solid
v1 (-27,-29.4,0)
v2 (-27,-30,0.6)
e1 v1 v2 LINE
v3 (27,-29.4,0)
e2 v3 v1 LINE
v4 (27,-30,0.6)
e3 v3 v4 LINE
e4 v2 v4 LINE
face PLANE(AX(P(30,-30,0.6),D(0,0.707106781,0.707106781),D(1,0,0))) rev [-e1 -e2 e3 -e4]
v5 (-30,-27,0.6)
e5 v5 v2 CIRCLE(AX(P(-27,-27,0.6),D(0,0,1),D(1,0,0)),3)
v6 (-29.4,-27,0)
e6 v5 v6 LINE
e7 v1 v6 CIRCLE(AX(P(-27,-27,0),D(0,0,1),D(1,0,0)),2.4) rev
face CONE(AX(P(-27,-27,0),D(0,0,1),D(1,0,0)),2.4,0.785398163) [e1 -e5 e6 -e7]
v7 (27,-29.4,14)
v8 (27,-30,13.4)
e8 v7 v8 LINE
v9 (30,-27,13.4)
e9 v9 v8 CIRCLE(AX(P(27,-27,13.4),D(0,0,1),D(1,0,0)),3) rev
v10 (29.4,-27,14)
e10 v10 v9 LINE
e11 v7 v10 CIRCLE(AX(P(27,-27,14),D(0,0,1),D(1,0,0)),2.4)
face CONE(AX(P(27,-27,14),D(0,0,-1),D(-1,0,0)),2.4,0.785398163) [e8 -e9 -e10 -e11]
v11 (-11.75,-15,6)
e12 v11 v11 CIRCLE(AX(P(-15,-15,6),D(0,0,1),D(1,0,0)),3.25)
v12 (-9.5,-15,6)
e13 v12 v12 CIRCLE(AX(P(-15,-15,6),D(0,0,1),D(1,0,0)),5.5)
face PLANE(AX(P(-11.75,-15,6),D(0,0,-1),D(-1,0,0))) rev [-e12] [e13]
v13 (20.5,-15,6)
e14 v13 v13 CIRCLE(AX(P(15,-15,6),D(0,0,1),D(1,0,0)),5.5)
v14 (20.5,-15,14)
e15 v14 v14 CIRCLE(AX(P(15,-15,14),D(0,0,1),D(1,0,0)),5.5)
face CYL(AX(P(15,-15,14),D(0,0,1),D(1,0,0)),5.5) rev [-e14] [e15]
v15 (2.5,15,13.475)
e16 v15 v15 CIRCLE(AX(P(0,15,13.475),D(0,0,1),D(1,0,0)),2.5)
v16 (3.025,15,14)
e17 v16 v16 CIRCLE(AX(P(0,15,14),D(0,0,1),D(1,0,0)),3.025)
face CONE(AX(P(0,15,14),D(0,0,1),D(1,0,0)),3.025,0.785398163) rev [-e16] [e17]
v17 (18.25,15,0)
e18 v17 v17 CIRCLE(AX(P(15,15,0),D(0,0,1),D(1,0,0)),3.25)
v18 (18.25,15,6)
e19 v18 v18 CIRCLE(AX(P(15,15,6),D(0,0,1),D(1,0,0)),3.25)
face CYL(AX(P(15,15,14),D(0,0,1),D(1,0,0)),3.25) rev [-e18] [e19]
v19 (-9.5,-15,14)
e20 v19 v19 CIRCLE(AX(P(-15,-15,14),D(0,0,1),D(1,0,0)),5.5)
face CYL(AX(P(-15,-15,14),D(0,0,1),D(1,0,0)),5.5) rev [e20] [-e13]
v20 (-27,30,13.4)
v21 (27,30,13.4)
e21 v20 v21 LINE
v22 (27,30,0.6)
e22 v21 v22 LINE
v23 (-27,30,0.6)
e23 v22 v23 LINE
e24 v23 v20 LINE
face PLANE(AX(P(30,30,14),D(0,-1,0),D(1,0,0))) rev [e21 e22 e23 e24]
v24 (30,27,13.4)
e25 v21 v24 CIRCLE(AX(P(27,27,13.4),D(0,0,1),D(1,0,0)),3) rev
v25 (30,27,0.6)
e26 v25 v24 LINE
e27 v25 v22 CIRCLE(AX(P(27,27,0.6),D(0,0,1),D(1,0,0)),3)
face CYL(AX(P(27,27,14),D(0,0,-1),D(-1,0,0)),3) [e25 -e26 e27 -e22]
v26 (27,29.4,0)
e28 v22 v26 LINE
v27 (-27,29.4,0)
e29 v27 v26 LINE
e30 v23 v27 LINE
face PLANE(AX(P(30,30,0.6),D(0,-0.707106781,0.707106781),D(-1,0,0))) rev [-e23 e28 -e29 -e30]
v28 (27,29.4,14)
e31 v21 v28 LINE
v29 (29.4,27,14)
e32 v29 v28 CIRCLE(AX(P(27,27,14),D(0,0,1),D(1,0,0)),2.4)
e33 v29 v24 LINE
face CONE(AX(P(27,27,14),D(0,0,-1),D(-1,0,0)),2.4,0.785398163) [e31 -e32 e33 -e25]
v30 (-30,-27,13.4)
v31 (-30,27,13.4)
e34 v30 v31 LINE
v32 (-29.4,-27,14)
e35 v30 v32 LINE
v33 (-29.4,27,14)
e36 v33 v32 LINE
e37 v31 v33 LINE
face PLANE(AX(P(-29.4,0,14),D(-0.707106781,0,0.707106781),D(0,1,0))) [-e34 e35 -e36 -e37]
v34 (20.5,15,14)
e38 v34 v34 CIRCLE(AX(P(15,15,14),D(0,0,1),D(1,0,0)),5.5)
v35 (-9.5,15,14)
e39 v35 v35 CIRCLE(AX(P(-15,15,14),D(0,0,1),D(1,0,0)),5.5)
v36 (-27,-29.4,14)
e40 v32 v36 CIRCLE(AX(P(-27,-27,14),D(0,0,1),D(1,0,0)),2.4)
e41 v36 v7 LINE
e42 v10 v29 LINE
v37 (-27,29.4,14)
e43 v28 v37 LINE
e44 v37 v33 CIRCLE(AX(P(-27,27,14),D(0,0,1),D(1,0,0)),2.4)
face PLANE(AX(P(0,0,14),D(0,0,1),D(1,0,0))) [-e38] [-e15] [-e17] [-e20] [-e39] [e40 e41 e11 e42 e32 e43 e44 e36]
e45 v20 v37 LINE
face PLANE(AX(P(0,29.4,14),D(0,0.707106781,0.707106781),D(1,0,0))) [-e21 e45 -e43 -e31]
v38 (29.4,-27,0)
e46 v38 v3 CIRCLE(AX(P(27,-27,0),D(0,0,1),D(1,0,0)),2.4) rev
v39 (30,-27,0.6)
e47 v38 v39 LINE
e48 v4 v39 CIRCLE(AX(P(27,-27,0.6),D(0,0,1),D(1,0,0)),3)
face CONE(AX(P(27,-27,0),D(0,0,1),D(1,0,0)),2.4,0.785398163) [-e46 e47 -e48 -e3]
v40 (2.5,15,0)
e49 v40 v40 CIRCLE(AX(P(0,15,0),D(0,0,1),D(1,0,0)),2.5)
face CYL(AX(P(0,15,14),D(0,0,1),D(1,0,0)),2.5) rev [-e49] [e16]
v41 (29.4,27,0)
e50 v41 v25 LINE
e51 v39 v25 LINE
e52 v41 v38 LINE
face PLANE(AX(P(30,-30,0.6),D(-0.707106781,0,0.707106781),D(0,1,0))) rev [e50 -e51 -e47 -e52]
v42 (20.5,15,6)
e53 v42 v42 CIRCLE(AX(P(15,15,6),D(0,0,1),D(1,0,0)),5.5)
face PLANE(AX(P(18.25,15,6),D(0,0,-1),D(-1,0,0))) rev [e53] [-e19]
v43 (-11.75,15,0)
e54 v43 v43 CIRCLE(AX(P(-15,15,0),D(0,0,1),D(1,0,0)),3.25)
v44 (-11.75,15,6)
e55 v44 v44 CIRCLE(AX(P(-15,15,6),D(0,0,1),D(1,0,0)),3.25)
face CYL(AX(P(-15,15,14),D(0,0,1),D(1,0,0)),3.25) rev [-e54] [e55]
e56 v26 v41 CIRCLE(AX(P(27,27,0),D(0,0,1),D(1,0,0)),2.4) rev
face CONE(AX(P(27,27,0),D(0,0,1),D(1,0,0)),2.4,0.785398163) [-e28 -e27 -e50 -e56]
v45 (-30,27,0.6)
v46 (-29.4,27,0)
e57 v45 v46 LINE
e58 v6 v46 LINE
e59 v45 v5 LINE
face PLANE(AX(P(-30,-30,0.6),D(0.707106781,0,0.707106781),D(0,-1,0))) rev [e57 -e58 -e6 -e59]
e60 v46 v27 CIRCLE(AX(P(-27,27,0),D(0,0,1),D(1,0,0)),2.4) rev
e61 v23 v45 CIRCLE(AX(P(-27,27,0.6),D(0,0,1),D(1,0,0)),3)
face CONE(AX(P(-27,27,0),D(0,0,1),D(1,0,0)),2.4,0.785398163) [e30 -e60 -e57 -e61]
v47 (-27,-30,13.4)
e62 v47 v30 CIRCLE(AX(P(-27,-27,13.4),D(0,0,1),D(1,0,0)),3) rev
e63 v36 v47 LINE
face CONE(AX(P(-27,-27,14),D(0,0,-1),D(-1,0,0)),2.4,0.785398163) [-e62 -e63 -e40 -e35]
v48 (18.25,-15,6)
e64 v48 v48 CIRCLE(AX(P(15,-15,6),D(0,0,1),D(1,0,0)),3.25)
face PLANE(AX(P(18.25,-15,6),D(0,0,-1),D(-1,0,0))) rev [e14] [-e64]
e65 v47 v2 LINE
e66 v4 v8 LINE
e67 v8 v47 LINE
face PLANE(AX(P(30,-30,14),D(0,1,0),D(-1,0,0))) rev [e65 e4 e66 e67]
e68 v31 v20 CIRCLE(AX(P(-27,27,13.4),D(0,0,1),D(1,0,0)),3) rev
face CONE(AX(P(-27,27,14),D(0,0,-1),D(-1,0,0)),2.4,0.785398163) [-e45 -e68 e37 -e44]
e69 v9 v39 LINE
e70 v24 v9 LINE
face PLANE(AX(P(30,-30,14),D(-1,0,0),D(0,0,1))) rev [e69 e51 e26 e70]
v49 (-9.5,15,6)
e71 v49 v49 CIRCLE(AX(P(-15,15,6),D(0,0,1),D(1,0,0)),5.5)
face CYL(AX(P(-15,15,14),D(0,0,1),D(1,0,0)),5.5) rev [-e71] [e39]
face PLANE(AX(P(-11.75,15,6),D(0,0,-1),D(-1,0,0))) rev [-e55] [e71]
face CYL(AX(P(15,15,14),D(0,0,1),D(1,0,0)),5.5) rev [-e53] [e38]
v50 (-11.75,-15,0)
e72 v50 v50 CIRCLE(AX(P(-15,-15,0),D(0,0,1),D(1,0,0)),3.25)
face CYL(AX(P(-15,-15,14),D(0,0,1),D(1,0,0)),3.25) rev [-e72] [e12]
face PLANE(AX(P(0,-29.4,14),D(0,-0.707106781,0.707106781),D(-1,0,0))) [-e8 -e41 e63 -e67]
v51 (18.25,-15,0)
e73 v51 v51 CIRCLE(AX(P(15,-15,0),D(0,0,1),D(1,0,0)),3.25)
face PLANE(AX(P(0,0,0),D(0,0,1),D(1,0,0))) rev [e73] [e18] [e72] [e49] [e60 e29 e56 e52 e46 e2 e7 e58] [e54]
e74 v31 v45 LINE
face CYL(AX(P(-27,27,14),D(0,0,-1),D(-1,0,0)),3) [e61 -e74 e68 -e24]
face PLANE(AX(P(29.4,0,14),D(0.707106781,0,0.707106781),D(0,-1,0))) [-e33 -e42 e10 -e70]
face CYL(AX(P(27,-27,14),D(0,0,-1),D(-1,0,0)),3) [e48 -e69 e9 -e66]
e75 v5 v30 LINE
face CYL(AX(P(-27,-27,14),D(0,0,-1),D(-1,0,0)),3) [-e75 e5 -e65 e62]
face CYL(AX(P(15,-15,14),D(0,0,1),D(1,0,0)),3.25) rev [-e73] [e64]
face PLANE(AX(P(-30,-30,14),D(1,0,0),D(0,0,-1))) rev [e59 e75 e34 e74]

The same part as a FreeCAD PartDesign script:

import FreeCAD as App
import Part
import Sketcher


def edges_at(feature, points):
    """Names of the edges that pass closest to the given points."""
    edges = feature.Shape.Edges
    near = lambda p: min(range(len(edges)), key=lambda i: edges[i].distToShape(Part.Vertex(*p))[0])
    return sorted({f"Edge{near(p) + 1}" for p in points})


def add_polygon(sketch, points):
    """Adds a closed chain of lines whose ends are joined by coincident constraints."""
    first, n = sketch.GeometryCount, len(points)
    for a, b in zip(points, points[1:] + points[:1]):
        sketch.addGeometry(Part.LineSegment(App.Vector(*a, 0), App.Vector(*b, 0)), False)
    for i in range(n):
        sketch.addConstraint(Sketcher.Constraint("Coincident", first + i, 2, first + (i + 1) % n, 1))

doc = App.newDocument("Part")
body = doc.addObject("PartDesign::Body", "Body")

# Sketch on XY plane
sketch1 = body.newObject("Sketcher::SketchObject", "Sketch")
sketch1.AttachmentSupport = (doc.getObject("XY_Plane"), [""])
sketch1.MapMode = "FlatFace"
add_polygon(sketch1, [(-30, 30), (-30, -30), (30, -30), (30, 30)])  # lines 0-3
sketch1.addConstraint([
    Sketcher.Constraint("Vertical", 0),
    Sketcher.Constraint("Horizontal", 1),
    Sketcher.Constraint("Vertical", 2),
    Sketcher.Constraint("Horizontal", 3),
    Sketcher.Constraint("Symmetric", 0, 2, 2, 2, -1, 1),
    Sketcher.Constraint("Equal", 3, 0),
    Sketcher.Constraint("DistanceX", 1, 1, 1, 2, 60.0),
])
pad1 = body.newObject("PartDesign::Pad", "Pad")
pad1.Profile = sketch1
pad1.Length = 14

# Sketch on XY plane
sketch2 = body.newObject("Sketcher::SketchObject", "Sketch001")
sketch2.AttachmentSupport = (doc.getObject("XY_Plane"), [""])
sketch2.MapMode = "FlatFace"
sketch2.AttachmentOffset = App.Placement(App.Vector(0, 0, 14), App.Rotation())
sketch2.addGeometry([
    Part.Circle(App.Vector(-15, 15, 0), App.Vector(0, 0, 1), 3.2),
    Part.Circle(App.Vector(15, 15, 0), App.Vector(0, 0, 1), 3.2),
    Part.Circle(App.Vector(15, -15, 0), App.Vector(0, 0, 1), 3.2),
    Part.Circle(App.Vector(-15, -15, 0), App.Vector(0, 0, 1), 3.2),
], False)
sketch2.addConstraint([
    Sketcher.Constraint("Equal", 0, 1),
    Sketcher.Constraint("Equal", 1, 2),
    Sketcher.Constraint("Equal", 2, 3),
    Sketcher.Constraint("Symmetric", 0, 3, 2, 3, -1, 1),
    Sketcher.Constraint("Symmetric", 1, 3, 3, 3, -1, 1),
    Sketcher.Constraint("Symmetric", 0, 3, 1, 3, -2),
    Sketcher.Constraint("Diameter", 0, 6.5),
    Sketcher.Constraint("DistanceX", 0, 3, -1, 1, 15.0),
    Sketcher.Constraint("DistanceY", -1, 1, 0, 3, 15.0),
])
doc.recompute()
hole = body.newObject("PartDesign::Hole", "Hole")
hole.Profile = sketch2
hole.ThreadType = "None"
hole.Diameter = 6.5
hole.DepthType = "ThroughAll"
hole.HoleCutType = "Counterbore"
hole.HoleCutDiameter = 11
hole.HoleCutDepth = 8

# Sketch on XY plane
sketch3 = body.newObject("Sketcher::SketchObject", "Sketch002")
sketch3.AttachmentSupport = (doc.getObject("XY_Plane"), [""])
sketch3.MapMode = "FlatFace"
sketch3.AttachmentOffset = App.Placement(App.Vector(0, 0, 14), App.Rotation())
sketch3.addGeometry(Part.Circle(App.Vector(0, 15, 0), App.Vector(0, 0, 1), 2.5), False)
sketch3.addConstraint([
    Sketcher.Constraint("PointOnObject", 0, 3, -2),
    Sketcher.Constraint("Diameter", 0, 5.0),
    Sketcher.Constraint("DistanceY", -1, 1, 0, 3, 15.0),
])
doc.recompute()
hole2 = body.newObject("PartDesign::Hole", "Hole001")
hole2.Profile = sketch3
hole2.ThreadType = "None"
hole2.Diameter = 5
hole2.DepthType = "ThroughAll"
hole2.HoleCutType = "Countersink"
hole2.HoleCutDiameter = 6.05
hole2.HoleCutCountersinkAngle = 90
doc.recompute()

fillet = body.newObject("PartDesign::Fillet", "Fillet")
fillet.Base = (hole2, edges_at(hole2, [
    (-30, 30, 7),
    (30, 30, 7),
    (30, -30, 7),
    (-30, -30, 7),
]))
fillet.Radius = 3
doc.recompute()

chamfer = body.newObject("PartDesign::Chamfer", "Chamfer")
chamfer.Base = (fillet, edges_at(fillet, [
    (-30, 0, 0),
    (-30, 0, 14),
    (0, 30, 0),
    (30, 0, 0),
    (0, -30, 0),
    (-29.121, -29.121, 0),
    (29.121, -29.121, 0),
    (29.121, 29.121, 0),
    (-29.121, 29.121, 0),
    (0, 30, 14),
    (0, -30, 14),
    (30, 0, 14),
    (-29.121, -29.121, 14),
    (29.121, -29.121, 14),
    (29.121, 29.121, 14),
    (-29.121, 29.121, 14),
]))
chamfer.Size = 0.6

doc.recompute()
